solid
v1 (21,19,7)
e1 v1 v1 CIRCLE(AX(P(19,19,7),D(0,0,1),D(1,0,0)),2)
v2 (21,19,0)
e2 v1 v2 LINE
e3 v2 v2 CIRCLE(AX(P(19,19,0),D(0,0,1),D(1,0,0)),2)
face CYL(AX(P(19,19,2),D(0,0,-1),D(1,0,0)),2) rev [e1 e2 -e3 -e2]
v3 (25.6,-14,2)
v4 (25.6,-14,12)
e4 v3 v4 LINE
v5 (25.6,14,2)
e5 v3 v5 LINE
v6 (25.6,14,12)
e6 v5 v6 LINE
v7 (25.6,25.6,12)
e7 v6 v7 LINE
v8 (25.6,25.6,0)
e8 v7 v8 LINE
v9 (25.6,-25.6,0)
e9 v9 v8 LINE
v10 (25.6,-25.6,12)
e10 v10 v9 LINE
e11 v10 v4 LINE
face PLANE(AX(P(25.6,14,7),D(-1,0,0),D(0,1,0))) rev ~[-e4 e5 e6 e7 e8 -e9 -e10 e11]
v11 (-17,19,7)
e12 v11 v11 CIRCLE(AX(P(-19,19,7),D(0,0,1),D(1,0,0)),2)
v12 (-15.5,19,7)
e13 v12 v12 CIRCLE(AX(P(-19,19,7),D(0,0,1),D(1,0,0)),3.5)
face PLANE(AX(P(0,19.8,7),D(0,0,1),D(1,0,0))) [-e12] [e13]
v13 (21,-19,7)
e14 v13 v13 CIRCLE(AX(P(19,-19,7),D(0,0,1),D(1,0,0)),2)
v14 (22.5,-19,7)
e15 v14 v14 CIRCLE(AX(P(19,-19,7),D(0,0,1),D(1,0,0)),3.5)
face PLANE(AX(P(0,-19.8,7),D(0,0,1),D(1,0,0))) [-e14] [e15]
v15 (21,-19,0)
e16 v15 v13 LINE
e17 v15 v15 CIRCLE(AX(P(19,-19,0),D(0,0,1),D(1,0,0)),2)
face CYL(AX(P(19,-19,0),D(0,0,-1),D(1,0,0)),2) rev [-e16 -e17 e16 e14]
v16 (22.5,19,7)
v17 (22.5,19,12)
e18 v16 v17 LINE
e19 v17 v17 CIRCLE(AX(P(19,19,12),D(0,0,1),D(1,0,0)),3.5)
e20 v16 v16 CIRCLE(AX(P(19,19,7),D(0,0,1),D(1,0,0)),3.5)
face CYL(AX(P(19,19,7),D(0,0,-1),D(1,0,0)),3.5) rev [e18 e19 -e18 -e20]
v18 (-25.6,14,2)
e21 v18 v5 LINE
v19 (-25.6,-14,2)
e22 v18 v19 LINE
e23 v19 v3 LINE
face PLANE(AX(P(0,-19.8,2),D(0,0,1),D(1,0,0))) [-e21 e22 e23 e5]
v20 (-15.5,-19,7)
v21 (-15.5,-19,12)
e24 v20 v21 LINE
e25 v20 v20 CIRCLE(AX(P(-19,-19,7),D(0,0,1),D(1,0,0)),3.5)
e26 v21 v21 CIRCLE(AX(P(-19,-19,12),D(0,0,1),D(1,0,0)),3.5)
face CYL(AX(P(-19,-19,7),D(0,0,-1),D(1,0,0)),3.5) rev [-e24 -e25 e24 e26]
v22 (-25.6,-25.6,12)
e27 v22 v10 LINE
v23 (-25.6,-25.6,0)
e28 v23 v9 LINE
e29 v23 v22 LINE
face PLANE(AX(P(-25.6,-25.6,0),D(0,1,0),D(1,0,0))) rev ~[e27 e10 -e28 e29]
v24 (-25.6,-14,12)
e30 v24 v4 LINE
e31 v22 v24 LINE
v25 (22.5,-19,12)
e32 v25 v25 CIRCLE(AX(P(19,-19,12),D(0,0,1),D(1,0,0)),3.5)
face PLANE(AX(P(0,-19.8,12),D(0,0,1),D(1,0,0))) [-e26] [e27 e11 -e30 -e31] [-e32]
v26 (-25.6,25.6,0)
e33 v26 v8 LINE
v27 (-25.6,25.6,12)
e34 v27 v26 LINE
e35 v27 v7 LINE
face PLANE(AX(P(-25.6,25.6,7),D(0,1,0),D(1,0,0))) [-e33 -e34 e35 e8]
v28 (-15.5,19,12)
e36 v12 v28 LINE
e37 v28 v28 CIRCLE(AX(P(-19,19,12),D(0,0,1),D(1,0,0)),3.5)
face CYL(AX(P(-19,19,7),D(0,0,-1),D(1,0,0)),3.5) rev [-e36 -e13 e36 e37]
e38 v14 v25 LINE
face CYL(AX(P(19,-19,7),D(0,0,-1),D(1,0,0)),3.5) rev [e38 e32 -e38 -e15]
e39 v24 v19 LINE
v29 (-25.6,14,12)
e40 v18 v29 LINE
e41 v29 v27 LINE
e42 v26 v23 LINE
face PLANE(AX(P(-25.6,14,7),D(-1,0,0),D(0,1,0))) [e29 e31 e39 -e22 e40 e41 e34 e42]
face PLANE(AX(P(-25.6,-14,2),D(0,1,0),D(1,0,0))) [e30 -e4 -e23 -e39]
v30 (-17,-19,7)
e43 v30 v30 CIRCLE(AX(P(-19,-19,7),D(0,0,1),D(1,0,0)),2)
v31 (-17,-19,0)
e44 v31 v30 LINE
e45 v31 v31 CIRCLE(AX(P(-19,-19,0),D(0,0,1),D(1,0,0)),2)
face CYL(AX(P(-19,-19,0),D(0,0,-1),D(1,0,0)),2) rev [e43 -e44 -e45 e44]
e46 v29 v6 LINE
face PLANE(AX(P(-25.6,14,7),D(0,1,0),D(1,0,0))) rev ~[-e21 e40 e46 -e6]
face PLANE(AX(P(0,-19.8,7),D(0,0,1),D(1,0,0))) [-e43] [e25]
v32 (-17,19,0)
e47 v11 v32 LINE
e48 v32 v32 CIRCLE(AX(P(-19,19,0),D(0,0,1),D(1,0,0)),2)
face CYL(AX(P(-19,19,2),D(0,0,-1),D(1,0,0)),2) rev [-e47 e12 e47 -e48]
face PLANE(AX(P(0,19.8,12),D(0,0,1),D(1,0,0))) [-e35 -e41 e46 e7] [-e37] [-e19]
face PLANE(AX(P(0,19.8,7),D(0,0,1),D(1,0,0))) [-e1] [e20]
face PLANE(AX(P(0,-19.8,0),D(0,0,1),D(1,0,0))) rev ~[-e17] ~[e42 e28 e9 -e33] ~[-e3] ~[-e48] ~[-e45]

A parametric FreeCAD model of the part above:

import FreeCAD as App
import Part
import Sketcher

V = App.Vector


def add_polygon(sketch, points):
    """Adds a closed chain of lines whose ends are joined by coincident constraints."""
    first, n = sketch.GeometryCount, len(points)
    for a, b in zip(points, points[1:] + points[:1]):
        sketch.addGeometry(Part.LineSegment(App.Vector(*a, 0), App.Vector(*b, 0)), False)
    for i in range(n):
        sketch.addConstraint(Sketcher.Constraint("Coincident", first + i, 2, first + (i + 1) % n, 1))

doc = App.newDocument("Part")
body = doc.addObject("PartDesign::Body", "Body")

# Sketch on XY plane
sketch1 = body.newObject("Sketcher::SketchObject", "Sketch")
sketch1.AttachmentSupport = (doc.getObject("XY_Plane"), [""])
sketch1.MapMode = "FlatFace"
add_polygon(sketch1, [(-25.6, -25.6), (25.6, -25.6), (25.6, 25.6), (-25.6, 25.6)])  # lines 0-3
sketch1.addGeometry(Part.Circle(V(-19, -19, 0), V(0, 0, 1), 2), False)  # 4
sketch1.addGeometry(Part.Circle(V(19, -19, 0), V(0, 0, 1), 2), False)  # 5
sketch1.addGeometry(Part.Circle(V(-19, 19, 0), V(0, 0, 1), 2), False)  # 6
sketch1.addGeometry(Part.Circle(V(19, 19, 0), V(0, 0, 1), 2), False)  # 7
sketch1.addConstraint(Sketcher.Constraint("Horizontal", 0))
sketch1.addConstraint(Sketcher.Constraint("Vertical", 1))
sketch1.addConstraint(Sketcher.Constraint("Horizontal", 2))
sketch1.addConstraint(Sketcher.Constraint("Vertical", 3))
sketch1.addConstraint(Sketcher.Constraint("Equal", 4, 5))
sketch1.addConstraint(Sketcher.Constraint("Equal", 5, 6))
sketch1.addConstraint(Sketcher.Constraint("Equal", 6, 7))
sketch1.addConstraint(Sketcher.Constraint("Symmetric", 5, 3, 6, 3, -1, 1))
sketch1.addConstraint(Sketcher.Constraint("Symmetric", 4, 3, 7, 3, -1, 1))
sketch1.addConstraint(Sketcher.Constraint("Symmetric", 0, 2, 2, 2, -1, 1))
sketch1.addConstraint(Sketcher.Constraint("Symmetric", 4, 3, 5, 3, -2))
sketch1.addConstraint(Sketcher.Constraint("Equal", 2, 1))
sketch1.addConstraint(Sketcher.Constraint("Diameter", 4, 4.0))
sketch1.addConstraint(Sketcher.Constraint("DistanceX", 0, 1, 0, 2, 51.2))
sketch1.addConstraint(Sketcher.Constraint("DistanceX", 4, 3, -1, 1, 19.0))
sketch1.addConstraint(Sketcher.Constraint("DistanceY", 4, 3, -1, 1, 19.0))
pad1 = body.newObject("PartDesign::Pad", "Pad")
pad1.Profile = sketch1
pad1.Length = 2

# Sketch on XY plane
sketch2 = body.newObject("Sketcher::SketchObject", "Sketch001")
sketch2.AttachmentSupport = (doc.getObject("XY_Plane"), [""])
sketch2.MapMode = "FlatFace"
sketch2.AttachmentOffset = App.Placement(V(0, 0, 2), App.Rotation())
add_polygon(sketch2, [(-25.6, 25.6), (-25.6, 14), (25.6, 14), (25.6, 25.6)])  # lines 0-3
sketch2.addGeometry(Part.Circle(V(-19, 19, 0), V(0, 0, 1), 2), False)  # 4
sketch2.addGeometry(Part.Circle(V(19, 19, 0), V(0, 0, 1), 2), False)  # 5
add_polygon(sketch2, [(-25.6, -14), (-25.6, -25.6), (25.6, -25.6), (25.6, -14)])  # lines 6-9
sketch2.addGeometry(Part.Circle(V(-19, -19, 0), V(0, 0, 1), 2), False)  # 10
sketch2.addGeometry(Part.Circle(V(19, -19, 0), V(0, 0, 1), 2), False)  # 11
sketch2.addConstraint(Sketcher.Constraint("Vertical", 0))
sketch2.addConstraint(Sketcher.Constraint("Horizontal", 1))
sketch2.addConstraint(Sketcher.Constraint("Vertical", 2))
sketch2.addConstraint(Sketcher.Constraint("Horizontal", 3))
sketch2.addConstraint(Sketcher.Constraint("Vertical", 6))
sketch2.addConstraint(Sketcher.Constraint("Horizontal", 7))
sketch2.addConstraint(Sketcher.Constraint("Vertical", 8))
sketch2.addConstraint(Sketcher.Constraint("Horizontal", 9))
sketch2.addConstraint(Sketcher.Constraint("Equal", 4, 5))
sketch2.addConstraint(Sketcher.Constraint("Equal", 5, 10))
sketch2.addConstraint(Sketcher.Constraint("Equal", 10, 11))
sketch2.addConstraint(Sketcher.Constraint("Symmetric", 5, 3, 10, 3, -1, 1))
sketch2.addConstraint(Sketcher.Constraint("Symmetric", 4, 3, 11, 3, -1, 1))
sketch2.addConstraint(Sketcher.Constraint("Symmetric", 2, 2, 6, 2, -1, 1))
sketch2.addConstraint(Sketcher.Constraint("Symmetric", 0, 2, 8, 2, -1, 1))
sketch2.addConstraint(Sketcher.Constraint("Symmetric", 4, 3, 5, 3, -2))
sketch2.addConstraint(Sketcher.Constraint("Vertical", 3, 2, 6, 2))
sketch2.addConstraint(Sketcher.Constraint("Diameter", 4, 4.0))
sketch2.addConstraint(Sketcher.Constraint("DistanceX", 1, 1, 1, 2, 51.2))
sketch2.addConstraint(Sketcher.Constraint("DistanceY", 0, 2, 0, 1, 11.6))
sketch2.addConstraint(Sketcher.Constraint("DistanceX", 4, 3, -1, 1, 19.0))
sketch2.addConstraint(Sketcher.Constraint("DistanceY", -1, 1, 4, 3, 19.0))
sketch2.addConstraint(Sketcher.Constraint("DistanceY", -1, 1, 0, 2, 14.0))
pad2 = body.newObject("PartDesign::Pad", "Pad001")
pad2.Profile = sketch2
pad2.Length = 5

# Sketch on XY plane
sketch3 = body.newObject("Sketcher::SketchObject", "Sketch002")
sketch3.AttachmentSupport = (doc.getObject("XY_Plane"), [""])
sketch3.MapMode = "FlatFace"
sketch3.AttachmentOffset = App.Placement(V(0, 0, 7), App.Rotation())
add_polygon(sketch3, [(-25.6, 25.6), (-25.6, 14), (25.6, 14), (25.6, 25.6)])  # lines 0-3
sketch3.addGeometry(Part.Circle(V(-19, 19, 0), V(0, 0, 1), 3.5), False)  # 4
sketch3.addGeometry(Part.Circle(V(19, 19, 0), V(0, 0, 1), 3.5), False)  # 5
add_polygon(sketch3, [(-25.6, -14), (-25.6, -25.6), (25.6, -25.6), (25.6, -14)])  # lines 6-9
sketch3.addGeometry(Part.Circle(V(-19, -19, 0), V(0, 0, 1), 3.5), False)  # 10
sketch3.addGeometry(Part.Circle(V(19, -19, 0), V(0, 0, 1), 3.5), False)  # 11
sketch3.addConstraint(Sketcher.Constraint("Vertical", 0))
sketch3.addConstraint(Sketcher.Constraint("Horizontal", 1))
sketch3.addConstraint(Sketcher.Constraint("Vertical", 2))
sketch3.addConstraint(Sketcher.Constraint("Horizontal", 3))
sketch3.addConstraint(Sketcher.Constraint("Vertical", 6))
sketch3.addConstraint(Sketcher.Constraint("Horizontal", 7))
sketch3.addConstraint(Sketcher.Constraint("Vertical", 8))
sketch3.addConstraint(Sketcher.Constraint("Horizontal", 9))
sketch3.addConstraint(Sketcher.Constraint("Equal", 4, 5))
sketch3.addConstraint(Sketcher.Constraint("Equal", 5, 10))
sketch3.addConstraint(Sketcher.Constraint("Equal", 10, 11))
sketch3.addConstraint(Sketcher.Constraint("Symmetric", 5, 3, 10, 3, -1, 1))
sketch3.addConstraint(Sketcher.Constraint("Symmetric", 4, 3, 11, 3, -1, 1))
sketch3.addConstraint(Sketcher.Constraint("Symmetric", 2, 2, 6, 2, -1, 1))
sketch3.addConstraint(Sketcher.Constraint("Symmetric", 0, 2, 8, 2, -1, 1))
sketch3.addConstraint(Sketcher.Constraint("Symmetric", 4, 3, 5, 3, -2))
sketch3.addConstraint(Sketcher.Constraint("Vertical", 3, 2, 6, 2))
sketch3.addConstraint(Sketcher.Constraint("Diameter", 4, 7.0))
sketch3.addConstraint(Sketcher.Constraint("DistanceX", 1, 1, 1, 2, 51.2))
sketch3.addConstraint(Sketcher.Constraint("DistanceY", 0, 2, 0, 1, 11.6))
sketch3.addConstraint(Sketcher.Constraint("DistanceX", 4, 3, -1, 1, 19.0))
sketch3.addConstraint(Sketcher.Constraint("DistanceY", -1, 1, 4, 3, 19.0))
sketch3.addConstraint(Sketcher.Constraint("DistanceY", -1, 1, 0, 2, 14.0))
pad3 = body.newObject("PartDesign::Pad", "Pad002")
pad3.Profile = sketch3
pad3.Length = 5

doc.recompute()
